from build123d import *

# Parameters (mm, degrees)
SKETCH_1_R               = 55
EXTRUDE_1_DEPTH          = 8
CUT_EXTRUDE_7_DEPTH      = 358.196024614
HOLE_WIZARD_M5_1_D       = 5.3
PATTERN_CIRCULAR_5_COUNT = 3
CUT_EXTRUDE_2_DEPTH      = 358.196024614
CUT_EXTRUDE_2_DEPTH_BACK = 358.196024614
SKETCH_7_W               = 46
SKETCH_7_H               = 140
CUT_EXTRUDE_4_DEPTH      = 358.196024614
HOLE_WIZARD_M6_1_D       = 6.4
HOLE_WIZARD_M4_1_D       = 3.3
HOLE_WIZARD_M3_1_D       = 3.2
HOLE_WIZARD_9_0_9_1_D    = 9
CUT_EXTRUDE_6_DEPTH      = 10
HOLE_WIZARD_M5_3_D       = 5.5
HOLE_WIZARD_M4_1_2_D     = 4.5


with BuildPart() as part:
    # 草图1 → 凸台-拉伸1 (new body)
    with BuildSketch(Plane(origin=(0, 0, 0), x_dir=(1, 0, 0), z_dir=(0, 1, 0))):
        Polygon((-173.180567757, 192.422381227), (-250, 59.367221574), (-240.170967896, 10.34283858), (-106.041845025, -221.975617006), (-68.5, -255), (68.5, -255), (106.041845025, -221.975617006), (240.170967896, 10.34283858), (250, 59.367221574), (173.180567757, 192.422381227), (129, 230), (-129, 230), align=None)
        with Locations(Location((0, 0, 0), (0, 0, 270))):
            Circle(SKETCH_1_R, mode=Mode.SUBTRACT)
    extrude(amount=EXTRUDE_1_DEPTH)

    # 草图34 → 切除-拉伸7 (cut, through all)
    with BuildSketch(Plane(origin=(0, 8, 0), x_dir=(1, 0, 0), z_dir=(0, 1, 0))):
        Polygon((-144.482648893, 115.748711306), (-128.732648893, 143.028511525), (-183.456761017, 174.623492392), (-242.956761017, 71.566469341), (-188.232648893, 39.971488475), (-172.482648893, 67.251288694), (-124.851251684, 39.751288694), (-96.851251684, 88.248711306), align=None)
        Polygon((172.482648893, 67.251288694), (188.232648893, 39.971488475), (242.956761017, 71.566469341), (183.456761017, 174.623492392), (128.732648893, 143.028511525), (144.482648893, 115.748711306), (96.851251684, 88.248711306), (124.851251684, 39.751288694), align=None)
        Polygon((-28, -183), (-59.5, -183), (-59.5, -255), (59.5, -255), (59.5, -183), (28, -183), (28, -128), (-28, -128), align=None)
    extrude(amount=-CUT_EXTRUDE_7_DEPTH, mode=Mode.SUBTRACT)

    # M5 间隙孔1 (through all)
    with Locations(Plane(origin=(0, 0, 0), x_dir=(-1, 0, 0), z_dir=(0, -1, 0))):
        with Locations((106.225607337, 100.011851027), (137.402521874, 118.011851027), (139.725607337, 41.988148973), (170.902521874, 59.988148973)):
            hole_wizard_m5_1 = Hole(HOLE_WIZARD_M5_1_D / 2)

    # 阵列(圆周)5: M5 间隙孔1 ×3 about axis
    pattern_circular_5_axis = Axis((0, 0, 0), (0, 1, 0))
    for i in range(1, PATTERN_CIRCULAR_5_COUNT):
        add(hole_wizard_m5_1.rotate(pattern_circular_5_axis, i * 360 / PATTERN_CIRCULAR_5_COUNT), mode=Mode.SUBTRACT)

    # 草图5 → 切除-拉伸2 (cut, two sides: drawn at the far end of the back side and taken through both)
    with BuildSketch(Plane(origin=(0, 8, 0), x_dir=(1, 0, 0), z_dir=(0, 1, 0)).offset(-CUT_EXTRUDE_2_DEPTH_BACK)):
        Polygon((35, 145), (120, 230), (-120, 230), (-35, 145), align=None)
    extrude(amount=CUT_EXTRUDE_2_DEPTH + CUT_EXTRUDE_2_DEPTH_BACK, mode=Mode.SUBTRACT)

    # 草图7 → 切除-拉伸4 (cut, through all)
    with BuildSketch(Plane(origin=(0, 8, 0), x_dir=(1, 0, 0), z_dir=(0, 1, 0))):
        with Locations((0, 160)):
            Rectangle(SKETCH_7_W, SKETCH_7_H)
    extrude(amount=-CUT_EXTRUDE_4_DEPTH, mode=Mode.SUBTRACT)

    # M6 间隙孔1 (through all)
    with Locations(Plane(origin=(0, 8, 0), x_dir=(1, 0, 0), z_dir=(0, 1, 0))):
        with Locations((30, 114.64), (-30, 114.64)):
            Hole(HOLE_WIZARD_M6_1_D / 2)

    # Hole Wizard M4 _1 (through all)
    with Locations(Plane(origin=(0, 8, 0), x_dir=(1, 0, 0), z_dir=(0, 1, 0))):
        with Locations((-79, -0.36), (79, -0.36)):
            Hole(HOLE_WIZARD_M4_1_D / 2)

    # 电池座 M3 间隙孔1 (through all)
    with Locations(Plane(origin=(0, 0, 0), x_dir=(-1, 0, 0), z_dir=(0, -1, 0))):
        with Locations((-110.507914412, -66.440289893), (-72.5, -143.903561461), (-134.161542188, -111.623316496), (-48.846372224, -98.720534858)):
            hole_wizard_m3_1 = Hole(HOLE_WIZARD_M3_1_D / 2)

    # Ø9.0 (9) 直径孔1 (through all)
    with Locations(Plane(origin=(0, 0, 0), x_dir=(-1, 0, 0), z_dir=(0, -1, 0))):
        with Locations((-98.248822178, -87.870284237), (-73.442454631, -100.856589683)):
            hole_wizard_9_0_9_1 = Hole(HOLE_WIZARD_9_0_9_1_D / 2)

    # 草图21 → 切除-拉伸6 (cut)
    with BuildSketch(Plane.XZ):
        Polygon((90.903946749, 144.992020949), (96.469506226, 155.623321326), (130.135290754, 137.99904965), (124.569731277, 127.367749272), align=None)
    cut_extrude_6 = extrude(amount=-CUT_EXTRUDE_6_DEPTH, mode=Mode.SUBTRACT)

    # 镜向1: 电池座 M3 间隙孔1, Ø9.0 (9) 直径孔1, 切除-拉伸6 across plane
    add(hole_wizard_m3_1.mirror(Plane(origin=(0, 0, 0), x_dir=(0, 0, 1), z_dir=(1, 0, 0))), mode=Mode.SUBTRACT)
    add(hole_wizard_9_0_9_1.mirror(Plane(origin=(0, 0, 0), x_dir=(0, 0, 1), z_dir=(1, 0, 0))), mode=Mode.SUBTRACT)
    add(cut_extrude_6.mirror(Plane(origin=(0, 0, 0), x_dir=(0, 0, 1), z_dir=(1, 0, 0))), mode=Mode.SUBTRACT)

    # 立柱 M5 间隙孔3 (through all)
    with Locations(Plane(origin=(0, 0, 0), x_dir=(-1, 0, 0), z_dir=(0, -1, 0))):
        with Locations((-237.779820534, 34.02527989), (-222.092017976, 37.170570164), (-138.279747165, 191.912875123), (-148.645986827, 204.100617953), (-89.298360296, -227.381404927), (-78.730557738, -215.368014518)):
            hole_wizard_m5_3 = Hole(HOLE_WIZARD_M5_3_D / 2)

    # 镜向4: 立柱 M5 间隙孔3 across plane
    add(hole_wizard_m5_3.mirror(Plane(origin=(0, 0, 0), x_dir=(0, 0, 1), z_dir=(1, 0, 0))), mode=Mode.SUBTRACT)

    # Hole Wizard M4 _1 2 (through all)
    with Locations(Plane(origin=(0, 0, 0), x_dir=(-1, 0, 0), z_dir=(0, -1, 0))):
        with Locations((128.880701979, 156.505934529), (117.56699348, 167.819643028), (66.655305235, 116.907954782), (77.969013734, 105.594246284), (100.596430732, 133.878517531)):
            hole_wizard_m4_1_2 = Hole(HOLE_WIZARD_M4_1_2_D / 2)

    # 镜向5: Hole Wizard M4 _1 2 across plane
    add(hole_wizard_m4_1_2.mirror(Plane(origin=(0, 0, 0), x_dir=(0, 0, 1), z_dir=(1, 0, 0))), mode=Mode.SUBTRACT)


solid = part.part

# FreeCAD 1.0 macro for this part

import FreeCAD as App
import Part
import Sketcher
Q = App.Units.Quantity

doc = App.newDocument("Part")
body = doc.addObject("PartDesign::Body", "Body")

sketch1 = doc.addObject("Sketcher::SketchObject", "Sketch")
body.addObject(sketch1)
sketch1.AttachmentSupport = (doc.XZ_Plane, [""])
sketch1.MapMode = "FlatFace"
sketch1.addGeometry([
    Part.LineSegment(App.Vector(-173.180568, -192.422381, 0), App.Vector(-250, -59.367222, 0)),
    Part.LineSegment(App.Vector(-250, -59.367222, 0), App.Vector(-240.170968, -10.342839, 0)),
    Part.LineSegment(App.Vector(-240.170968, -10.342839, 0), App.Vector(-106.041845, 221.975617, 0)),
    Part.LineSegment(App.Vector(-106.041845, 221.975617, 0), App.Vector(-68.5, 255, 0)),
    Part.LineSegment(App.Vector(-68.5, 255, 0), App.Vector(68.5, 255, 0)),
    Part.LineSegment(App.Vector(68.5, 255, 0), App.Vector(106.041845, 221.975617, 0)),
    Part.LineSegment(App.Vector(106.041845, 221.975617, 0), App.Vector(240.170968, -10.342839, 0)),
    Part.LineSegment(App.Vector(240.170968, -10.342839, 0), App.Vector(250, -59.367222, 0)),
    Part.LineSegment(App.Vector(250, -59.367222, 0), App.Vector(173.180568, -192.422381, 0)),
    Part.LineSegment(App.Vector(173.180568, -192.422381, 0), App.Vector(129, -230, 0)),
    Part.LineSegment(App.Vector(129, -230, 0), App.Vector(-129, -230, 0)),
    Part.LineSegment(App.Vector(-129, -230, 0), App.Vector(-173.180568, -192.422381, 0)),
    Part.Circle(App.Vector(0, 0, 0), App.Vector(0, 0, 1), 55),
], False)
sketch1.addConstraint([
    Sketcher.Constraint("Coincident", 0, 2, 1, 1),
    Sketcher.Constraint("Coincident", 1, 2, 2, 1),
    Sketcher.Constraint("Coincident", 2, 2, 3, 1),
    Sketcher.Constraint("Coincident", 3, 2, 4, 1),
    Sketcher.Constraint("Coincident", 4, 2, 5, 1),
    Sketcher.Constraint("Coincident", 5, 2, 6, 1),
    Sketcher.Constraint("Coincident", 6, 2, 7, 1),
    Sketcher.Constraint("Coincident", 7, 2, 8, 1),
    Sketcher.Constraint("Coincident", 8, 2, 9, 1),
    Sketcher.Constraint("Coincident", 9, 2, 10, 1),
    Sketcher.Constraint("Coincident", 10, 2, 11, 1),
    Sketcher.Constraint("Coincident", 11, 2, 0, 1),
    Sketcher.Constraint("Horizontal", 4),
    Sketcher.Constraint("Horizontal", 10),
    Sketcher.Constraint("Coincident", 12, 3, -1, 1),
    Sketcher.Constraint("Symmetric", 2, 2, 5, 2, -2),
    Sketcher.Constraint("Symmetric", 1, 2, 6, 2, -2),
    Sketcher.Constraint("Symmetric", 0, 2, 7, 2, -2),
    Sketcher.Constraint("Symmetric", 8, 2, 11, 2, -2),
    Sketcher.Constraint("Parallel", 0, 6),
    Sketcher.Constraint("Equal", 1, 3),
    Sketcher.Constraint("Equal", 3, 5),
    Sketcher.Constraint("Equal", 9, 11),
    Sketcher.Constraint("Diameter", 12, Q("110 mm")),
    Sketcher.Constraint("DistanceX", 4, 1, 4, 2, Q("137 mm")),
    Sketcher.Constraint("DistanceX", 10, 2, 10, 1, Q("258 mm")),
    Sketcher.Constraint("Angle", 0, Q("120 deg")),
    Sketcher.Constraint("Distance", 1, Q("50 mm")),
    Sketcher.Constraint("Distance", 9, Q("58 mm")),
    Sketcher.Constraint("DistanceX", 0, 2, -1, 1, Q("250 mm")),
    Sketcher.Constraint("DistanceY", -1, 1, 3, 2, Q("255 mm")),
    Sketcher.Constraint("DistanceY", 9, 2, -1, 1, Q("230 mm")),
    Sketcher.Constraint("DistanceY", 8, 2, 5, 2, Q("414.397998 mm")),
    Sketcher.Constraint("DistanceX", 8, 2, 6, 2, Q("66.9904 mm")),
])
pad1 = doc.addObject("PartDesign::Pad", "Pad")
body.addObject(pad1)
pad1.Profile = sketch1
pad1.Length = 8
pad1.Reversed = True

sketch2 = doc.addObject("Sketcher::SketchObject", "Sketch001")
body.addObject(sketch2)
sketch2.AttachmentSupport = (doc.XZ_Plane, [""])
sketch2.MapMode = "FlatFace"
sketch2.AttachmentOffset = App.Placement(App.Vector(0, 0, -8), App.Rotation())
sketch2.addGeometry([
    Part.LineSegment(App.Vector(-144.482649, -115.748711, 0), App.Vector(-128.732649, -143.028512, 0)),
    Part.LineSegment(App.Vector(-128.732649, -143.028512, 0), App.Vector(-183.456761, -174.623492, 0)),
    Part.LineSegment(App.Vector(-183.456761, -174.623492, 0), App.Vector(-242.956761, -71.566469, 0)),
    Part.LineSegment(App.Vector(-242.956761, -71.566469, 0), App.Vector(-188.232649, -39.971488, 0)),
    Part.LineSegment(App.Vector(-188.232649, -39.971488, 0), App.Vector(-172.482649, -67.251289, 0)),
    Part.LineSegment(App.Vector(-172.482649, -67.251289, 0), App.Vector(-124.851252, -39.751289, 0)),
    Part.LineSegment(App.Vector(-124.851252, -39.751289, 0), App.Vector(-96.851252, -88.248711, 0)),
    Part.LineSegment(App.Vector(-96.851252, -88.248711, 0), App.Vector(-144.482649, -115.748711, 0)),
    Part.LineSegment(App.Vector(172.482649, -67.251289, 0), App.Vector(188.232649, -39.971488, 0)),
    Part.LineSegment(App.Vector(188.232649, -39.971488, 0), App.Vector(242.956761, -71.566469, 0)),
    Part.LineSegment(App.Vector(242.956761, -71.566469, 0), App.Vector(183.456761, -174.623492, 0)),
    Part.LineSegment(App.Vector(183.456761, -174.623492, 0), App.Vector(128.732649, -143.028512, 0)),
    Part.LineSegment(App.Vector(128.732649, -143.028512, 0), App.Vector(144.482649, -115.748711, 0)),
    Part.LineSegment(App.Vector(144.482649, -115.748711, 0), App.Vector(96.851252, -88.248711, 0)),
    Part.LineSegment(App.Vector(96.851252, -88.248711, 0), App.Vector(124.851252, -39.751289, 0)),
    Part.LineSegment(App.Vector(124.851252, -39.751289, 0), App.Vector(172.482649, -67.251289, 0)),
    Part.LineSegment(App.Vector(-28, 183, 0), App.Vector(-59.5, 183, 0)),
    Part.LineSegment(App.Vector(-59.5, 183, 0), App.Vector(-59.5, 255, 0)),
    Part.LineSegment(App.Vector(-59.5, 255, 0), App.Vector(59.5, 255, 0)),
    Part.LineSegment(App.Vector(59.5, 255, 0), App.Vector(59.5, 183, 0)),
    Part.LineSegment(App.Vector(59.5, 183, 0), App.Vector(28, 183, 0)),
    Part.LineSegment(App.Vector(28, 183, 0), App.Vector(28, 128, 0)),
    Part.LineSegment(App.Vector(28, 128, 0), App.Vector(-28, 128, 0)),
    Part.LineSegment(App.Vector(-28, 128, 0), App.Vector(-28, 183, 0)),
], False)
sketch2.addConstraint([
    Sketcher.Constraint("Coincident", 0, 2, 1, 1),
    Sketcher.Constraint("Coincident", 1, 2, 2, 1),
    Sketcher.Constraint("Coincident", 2, 2, 3, 1),
    Sketcher.Constraint("Coincident", 3, 2, 4, 1),
    Sketcher.Constraint("Coincident", 4, 2, 5, 1),
    Sketcher.Constraint("Coincident", 5, 2, 6, 1),
    Sketcher.Constraint("Coincident", 6, 2, 7, 1),
    Sketcher.Constraint("Coincident", 7, 2, 0, 1),
    Sketcher.Constraint("Coincident", 8, 2, 9, 1),
    Sketcher.Constraint("Coincident", 9, 2, 10, 1),
    Sketcher.Constraint("Coincident", 10, 2, 11, 1),
    Sketcher.Constraint("Coincident", 11, 2, 12, 1),
    Sketcher.Constraint("Coincident", 12, 2, 13, 1),
    Sketcher.Constraint("Coincident", 13, 2, 14, 1),
    Sketcher.Constraint("Coincident", 14, 2, 15, 1),
    Sketcher.Constraint("Coincident", 15, 2, 8, 1),
    Sketcher.Constraint("Coincident", 16, 2, 17, 1),
    Sketcher.Constraint("Coincident", 17, 2, 18, 1),
    Sketcher.Constraint("Coincident", 18, 2, 19, 1),
    Sketcher.Constraint("Coincident", 19, 2, 20, 1),
    Sketcher.Constraint("Coincident", 20, 2, 21, 1),
    Sketcher.Constraint("Coincident", 21, 2, 22, 1),
    Sketcher.Constraint("Coincident", 22, 2, 23, 1),
    Sketcher.Constraint("Coincident", 23, 2, 16, 1),
    Sketcher.Constraint("Horizontal", 16),
    Sketcher.Constraint("Vertical", 17),
    Sketcher.Constraint("Horizontal", 18),
    Sketcher.Constraint("Vertical", 19),
    Sketcher.Constraint("Horizontal", 20),
    Sketcher.Constraint("Vertical", 21),
    Sketcher.Constraint("Horizontal", 22),
    Sketcher.Constraint("Vertical", 23),
    Sketcher.Constraint("Symmetric", 3, 2, 8, 2, -2),
    Sketcher.Constraint("Symmetric", 2, 2, 9, 2, -2),
    Sketcher.Constraint("Symmetric", 1, 2, 10, 2, -2),
    Sketcher.Constraint("Symmetric", 0, 2, 11, 2, -2),
    Sketcher.Constraint("Symmetric", 7, 2, 12, 2, -2),
    Sketcher.Constraint("Symmetric", 6, 2, 13, 2, -2),
    Sketcher.Constraint("Symmetric", 5, 2, 14, 2, -2),
    Sketcher.Constraint("Symmetric", 4, 2, 15, 2, -2),
    Sketcher.Constraint("Symmetric", 16, 2, 19, 2, -2),
    Sketcher.Constraint("Perpendicular", 0, 1),
    Sketcher.Constraint("Perpendicular", 1, 2),
    Sketcher.Constraint("Perpendicular", 2, 3),
    Sketcher.Constraint("Perpendicular", 3, 4),
    Sketcher.Constraint("Perpendicular", 4, 5),
    Sketcher.Constraint("Perpendicular", 5, 6),
    Sketcher.Constraint("Perpendicular", 6, 7),
    Sketcher.Constraint("Equal", 16, 20),
    Sketcher.Constraint("Equal", 1, 3),
    Sketcher.Constraint("Equal", 0, 4),
    Sketcher.Constraint("DistanceX", 18, 1, 18, 2, Q("119 mm")),
    Sketcher.Constraint("DistanceX", 22, 2, 22, 1, Q("56 mm")),
    Sketcher.Constraint("DistanceY", 17, 1, 17, 2, Q("72 mm")),
    Sketcher.Constraint("DistanceY", 21, 2, 21, 1, Q("55 mm")),
    Sketcher.Constraint("Angle", 0, Q("-60 deg")),
    Sketcher.Constraint("Distance", 2, Q("119 mm")),
    Sketcher.Constraint("Distance", 5, Q("55 mm")),
    Sketcher.Constraint("Distance", 6, Q("56 mm")),
    Sketcher.Constraint("DistanceY", -1, 1, 16, 2, Q("183 mm")),
    Sketcher.Constraint("DistanceX", 6, 2, 8, 2, Q("285.083901 mm")),
    Sketcher.Constraint("Distance", 1, Q("63.189962 mm")),
    Sketcher.Constraint("DistanceY", 0, 2, -1, 1, Q("143.028512 mm")),
])
pocket1 = doc.addObject("PartDesign::Pocket", "Pocket")
body.addObject(pocket1)
pocket1.Profile = sketch2
pocket1.Type = "ThroughAll"
pocket1.Reversed = True

sketch3 = doc.addObject("Sketcher::SketchObject", "Sketch002")
body.addObject(sketch3)
sketch3.AttachmentSupport = (doc.XZ_Plane, [""])
sketch3.MapMode = "FlatFace"
sketch3.addGeometry([
    Part.Circle(App.Vector(-106.225607, -100.011851, 0), App.Vector(0, 0, 1), 2.65),
    Part.Circle(App.Vector(-137.402522, -118.011851, 0), App.Vector(0, 0, 1), 2.65),
    Part.Circle(App.Vector(-139.725607, -41.988149, 0), App.Vector(0, 0, 1), 2.65),
    Part.Circle(App.Vector(-170.902522, -59.988149, 0), App.Vector(0, 0, 1), 2.65),
], False)
sketch3.addConstraint([
    Sketcher.Constraint("Equal", 0, 1),
    Sketcher.Constraint("Equal", 1, 2),
    Sketcher.Constraint("Equal", 2, 3),
    Sketcher.Constraint("Diameter", 0, Q("5.3 mm")),
    Sketcher.Constraint("DistanceY", 1, 3, 0, 3, Q("18 mm")),
    Sketcher.Constraint("DistanceY", 3, 3, 2, 3, Q("18 mm")),
    Sketcher.Constraint("DistanceX", 2, 3, 0, 3, Q("33.5 mm")),
    Sketcher.Constraint("DistanceX", 3, 3, 1, 3, Q("33.5 mm")),
    Sketcher.Constraint("DistanceY", 0, 3, -1, 1, Q("100.011851 mm")),
    Sketcher.Constraint("DistanceX", 1, 3, -1, 1, Q("137.402522 mm")),
    Sketcher.Constraint("DistanceY", 2, 3, -1, 1, Q("41.988149 mm")),
    Sketcher.Constraint("DistanceX", 0, 3, -1, 1, Q("106.225607 mm")),
])
doc.recompute()
hole = doc.addObject("PartDesign::Hole", "Hole")
body.addObject(hole)
hole.Profile = sketch3
hole.ThreadType = "None"
hole.Diameter = 5.3
hole.DepthType = "ThroughAll"
doc.recompute()

polarpattern = doc.addObject("PartDesign::PolarPattern", "PolarPattern")
body.addObject(polarpattern)
polarpattern.Originals = [hole]
polarpattern.Axis = (doc.Y_Axis, [""])
polarpattern.Angle = 360
polarpattern.Occurrences = 3
body.Tip = polarpattern

sketch4 = doc.addObject("Sketcher::SketchObject", "Sketch003")
body.addObject(sketch4)
sketch4.AttachmentSupport = (doc.XZ_Plane, [""])
sketch4.MapMode = "FlatFace"
sketch4.AttachmentOffset = App.Placement(App.Vector(0, 0, -8), App.Rotation())
sketch4.addGeometry([
    Part.LineSegment(App.Vector(35, -145, 0), App.Vector(120, -230, 0)),
    Part.LineSegment(App.Vector(120, -230, 0), App.Vector(-120, -230, 0)),
    Part.LineSegment(App.Vector(-120, -230, 0), App.Vector(-35, -145, 0)),
    Part.LineSegment(App.Vector(-35, -145, 0), App.Vector(35, -145, 0)),
], False)
sketch4.addConstraint([
    Sketcher.Constraint("Coincident", 0, 2, 1, 1),
    Sketcher.Constraint("Coincident", 1, 2, 2, 1),
    Sketcher.Constraint("Coincident", 2, 2, 3, 1),
    Sketcher.Constraint("Coincident", 3, 2, 0, 1),
    Sketcher.Constraint("Horizontal", 1),
    Sketcher.Constraint("Horizontal", 3),
    Sketcher.Constraint("Perpendicular", 0, 2),
    Sketcher.Constraint("Equal", 0, 2),
    Sketcher.Constraint("DistanceX", 1, 2, 1, 1, Q("240 mm")),
    Sketcher.Constraint("DistanceX", 3, 1, 3, 2, Q("70 mm")),
    Sketcher.Constraint("DistanceX", -1, 1, 0, 2, Q("120 mm")),
    Sketcher.Constraint("DistanceY", 0, 2, -1, 1, Q("230 mm")),
])
pocket2 = doc.addObject("PartDesign::Pocket", "Pocket001")
body.addObject(pocket2)
pocket2.Profile = sketch4
pocket2.Type = "ThroughAll"
pocket2.Midplane = True

sketch5 = doc.addObject("Sketcher::SketchObject", "Sketch004")
body.addObject(sketch5)
sketch5.AttachmentSupport = (doc.XZ_Plane, [""])
sketch5.MapMode = "FlatFace"
sketch5.AttachmentOffset = App.Placement(App.Vector(0, 0, -8), App.Rotation())
sketch5.addGeometry([
    Part.LineSegment(App.Vector(-23, -230, 0), App.Vector(-23, -90, 0)),
    Part.LineSegment(App.Vector(-23, -90, 0), App.Vector(23, -90, 0)),
    Part.LineSegment(App.Vector(23, -90, 0), App.Vector(23, -230, 0)),
    Part.LineSegment(App.Vector(23, -230, 0), App.Vector(-23, -230, 0)),
], False)
sketch5.addConstraint([
    Sketcher.Constraint("Coincident", 0, 2, 1, 1),
    Sketcher.Constraint("Coincident", 1, 2, 2, 1),
    Sketcher.Constraint("Coincident", 2, 2, 3, 1),
    Sketcher.Constraint("Coincident", 3, 2, 0, 1),
    Sketcher.Constraint("Vertical", 0),
    Sketcher.Constraint("Horizontal", 1),
    Sketcher.Constraint("Vertical", 2),
    Sketcher.Constraint("Horizontal", 3),
    Sketcher.Constraint("DistanceX", 1, 1, 1, 2, Q("46 mm")),
    Sketcher.Constraint("DistanceY", 0, 1, 0, 2, Q("140 mm")),
    Sketcher.Constraint("DistanceX", 0, 2, -1, 1, Q("23 mm")),
    Sketcher.Constraint("DistanceY", 0, 2, -1, 1, Q("90 mm")),
])
pocket3 = doc.addObject("PartDesign::Pocket", "Pocket002")
body.addObject(pocket3)
pocket3.Profile = sketch5
pocket3.Type = "ThroughAll"
pocket3.Reversed = True

sketch6 = doc.addObject("Sketcher::SketchObject", "Sketch005")
body.addObject(sketch6)
sketch6.AttachmentSupport = (doc.XZ_Plane, [""])
sketch6.MapMode = "FlatFace"
sketch6.AttachmentOffset = App.Placement(App.Vector(0, 0, -8), App.Rotation())
sketch6.addGeometry([
    Part.Circle(App.Vector(30, -114.64, 0), App.Vector(0, 0, 1), 3.2),
    Part.Circle(App.Vector(-30, -114.64, 0), App.Vector(0, 0, 1), 3.2),
], False)
sketch6.addConstraint([
    Sketcher.Constraint("Equal", 0, 1),
    Sketcher.Constraint("Symmetric", 0, 3, 1, 3, -2),
    Sketcher.Constraint("Diameter", 0, Q("6.4 mm")),
    Sketcher.Constraint("DistanceX", -1, 1, 0, 3, Q("30 mm")),
    Sketcher.Constraint("DistanceY", 0, 3, -1, 1, Q("114.64 mm")),
])
doc.recompute()
hole2 = doc.addObject("PartDesign::Hole", "Hole001")
body.addObject(hole2)
hole2.Profile = sketch6
hole2.ThreadType = "None"
hole2.Diameter = 6.4
hole2.DepthType = "ThroughAll"
hole2.Reversed = True

sketch7 = doc.addObject("Sketcher::SketchObject", "Sketch006")
body.addObject(sketch7)
sketch7.AttachmentSupport = (doc.XZ_Plane, [""])
sketch7.MapMode = "FlatFace"
sketch7.AttachmentOffset = App.Placement(App.Vector(0, 0, -8), App.Rotation())
sketch7.addGeometry([
    Part.Circle(App.Vector(-79, 0.36, 0), App.Vector(0, 0, 1), 1.65),
    Part.Circle(App.Vector(79, 0.36, 0), App.Vector(0, 0, 1), 1.65),
], False)
sketch7.addConstraint([
    Sketcher.Constraint("Equal", 0, 1),
    Sketcher.Constraint("Symmetric", 0, 3, 1, 3, -2),
    Sketcher.Constraint("Diameter", 0, Q("3.3 mm")),
    Sketcher.Constraint("DistanceX", 0, 3, -1, 1, Q("79 mm")),
    Sketcher.Constraint("DistanceY", -1, 1, 0, 3, Q("0.36 mm")),
])
doc.recompute()
hole3 = doc.addObject("PartDesign::Hole", "Hole002")
body.addObject(hole3)
hole3.Profile = sketch7
hole3.ThreadType = "None"
hole3.Diameter = 3.3
hole3.DepthType = "ThroughAll"
hole3.Reversed = True

sketch8 = doc.addObject("Sketcher::SketchObject", "Sketch007")
body.addObject(sketch8)
sketch8.AttachmentSupport = (doc.XZ_Plane, [""])
sketch8.MapMode = "FlatFace"
sketch8.addGeometry([
    Part.Circle(App.Vector(110.507914, 66.44029, 0), App.Vector(0, 0, 1), 1.6),
    Part.Circle(App.Vector(72.5, 143.903561, 0), App.Vector(0, 0, 1), 1.6),
    Part.Circle(App.Vector(134.161542, 111.623316, 0), App.Vector(0, 0, 1), 1.6),
    Part.Circle(App.Vector(48.846372, 98.720535, 0), App.Vector(0, 0, 1), 1.6),
], False)
sketch8.addConstraint([
    Sketcher.Constraint("Equal", 0, 1),
    Sketcher.Constraint("Equal", 1, 2),
    Sketcher.Constraint("Equal", 2, 3),
    Sketcher.Constraint("Diameter", 0, Q("3.2 mm")),
    Sketcher.Constraint("DistanceX", -1, 1, 1, 3, Q("72.5 mm")),
    Sketcher.Constraint("DistanceY", -1, 1, 0, 3, Q("66.44029 mm")),
    Sketcher.Constraint("DistanceY", -1, 1, 1, 3, Q("143.903561 mm")),
    Sketcher.Constraint("DistanceX", 3, 3, 2, 3, Q("85.31517 mm")),
    Sketcher.Constraint("DistanceY", 3, 3, 2, 3, Q("12.902782 mm")),
    Sketcher.Constraint("DistanceX", -1, 1, 0, 3, Q("110.507914 mm")),
    Sketcher.Constraint("DistanceX", -1, 1, 2, 3, Q("134.161542 mm")),
    Sketcher.Constraint("DistanceY", -1, 1, 2, 3, Q("111.623316 mm")),
])
doc.recompute()
hole4 = doc.addObject("PartDesign::Hole", "Hole003")
body.addObject(hole4)
hole4.Profile = sketch8
hole4.ThreadType = "None"
hole4.Diameter = 3.2
hole4.DepthType = "ThroughAll"

sketch9 = doc.addObject("Sketcher::SketchObject", "Sketch008")
body.addObject(sketch9)
sketch9.AttachmentSupport = (doc.XZ_Plane, [""])
sketch9.MapMode = "FlatFace"
sketch9.addGeometry([
    Part.Circle(App.Vector(98.248822, 87.870284, 0), App.Vector(0, 0, 1), 4.5),
    Part.Circle(App.Vector(73.442455, 100.85659, 0), App.Vector(0, 0, 1), 4.5),
], False)
sketch9.addConstraint([
    Sketcher.Constraint("Equal", 0, 1),
    Sketcher.Constraint("Diameter", 0, Q("9 mm")),
    Sketcher.Constraint("DistanceY", -1, 1, 1, 3, Q("100.85659 mm")),
    Sketcher.Constraint("DistanceX", -1, 1, 0, 3, Q("98.248822 mm")),
    Sketcher.Constraint("DistanceY", -1, 1, 0, 3, Q("87.870284 mm")),
    Sketcher.Constraint("DistanceX", -1, 1, 1, 3, Q("73.442455 mm")),
])
doc.recompute()
hole5 = doc.addObject("PartDesign::Hole", "Hole004")
body.addObject(hole5)
hole5.Profile = sketch9
hole5.ThreadType = "None"
hole5.Diameter = 9
hole5.DepthType = "ThroughAll"

sketch10 = doc.addObject("Sketcher::SketchObject", "Sketch009")
body.addObject(sketch10)
sketch10.AttachmentSupport = (doc.XZ_Plane, [""])
sketch10.MapMode = "FlatFace"
sketch10.addGeometry([
    Part.LineSegment(App.Vector(96.469506, 155.623321, 0), App.Vector(90.903947, 144.992021, 0)),
    Part.LineSegment(App.Vector(90.903947, 144.992021, 0), App.Vector(124.569731, 127.367749, 0)),
    Part.LineSegment(App.Vector(124.569731, 127.367749, 0), App.Vector(130.135291, 137.99905, 0)),
    Part.LineSegment(App.Vector(130.135291, 137.99905, 0), App.Vector(96.469506, 155.623321, 0)),
], False)
sketch10.addConstraint([
    Sketcher.Constraint("Coincident", 0, 2, 1, 1),
    Sketcher.Constraint("Coincident", 1, 2, 2, 1),
    Sketcher.Constraint("Coincident", 2, 2, 3, 1),
    Sketcher.Constraint("Coincident", 3, 2, 0, 1),
    Sketcher.Constraint("Perpendicular", 0, 1),
    Sketcher.Constraint("Perpendicular", 1, 2),
    Sketcher.Constraint("Perpendicular", 2, 3),
    Sketcher.Constraint("Distance", 0, Q("12 mm")),
    Sketcher.Constraint("Distance", 1, Q("38 mm")),
    Sketcher.Constraint("DistanceY", 1, 2, 2, 2, Q("10.6313 mm")),
    Sketcher.Constraint("DistanceY", -1, 1, 0, 2, Q("144.992021 mm")),
    Sketcher.Constraint("DistanceX", -1, 1, 1, 2, Q("124.569731 mm")),
])
pocket4 = doc.addObject("PartDesign::Pocket", "Pocket003")
body.addObject(pocket4)
pocket4.Profile = sketch10
pocket4.Length = 10
doc.recompute()

mirrored = doc.addObject("PartDesign::Mirrored", "Mirrored")
body.addObject(mirrored)
mirrored.Originals = [hole4, hole5, pocket4]
mirrored.MirrorPlane = (doc.YZ_Plane, [""])
body.Tip = mirrored

sketch11 = doc.addObject("Sketcher::SketchObject", "Sketch010")
body.addObject(sketch11)
sketch11.AttachmentSupport = (doc.XZ_Plane, [""])
sketch11.MapMode = "FlatFace"
sketch11.addGeometry([
    Part.Circle(App.Vector(237.779821, -34.02528, 0), App.Vector(0, 0, 1), 2.75),
    Part.Circle(App.Vector(222.092018, -37.17057, 0), App.Vector(0, 0, 1), 2.75),
    Part.Circle(App.Vector(138.279747, -191.912875, 0), App.Vector(0, 0, 1), 2.75),
    Part.Circle(App.Vector(148.645987, -204.100618, 0), App.Vector(0, 0, 1), 2.75),
    Part.Circle(App.Vector(89.29836, 227.381405, 0), App.Vector(0, 0, 1), 2.75),
    Part.Circle(App.Vector(78.730558, 215.368015, 0), App.Vector(0, 0, 1), 2.75),
], False)
sketch11.addConstraint([
    Sketcher.Constraint("Equal", 0, 1),
    Sketcher.Constraint("Equal", 1, 2),
    Sketcher.Constraint("Equal", 2, 3),
    Sketcher.Constraint("Equal", 3, 4),
    Sketcher.Constraint("Equal", 4, 5),
    Sketcher.Constraint("Diameter", 0, Q("5.5 mm")),
    Sketcher.Constraint("DistanceX", -1, 1, 0, 3, Q("237.779821 mm")),
    Sketcher.Constraint("DistanceY", 0, 3, -1, 1, Q("34.02528 mm")),
    Sketcher.Constraint("DistanceY", 1, 3, -1, 1, Q("37.17057 mm")),
    Sketcher.Constraint("DistanceX", -1, 1, 4, 3, Q("89.29836 mm")),
    Sketcher.Constraint("DistanceX", 2, 3, 1, 3, Q("83.812271 mm")),
    Sketcher.Constraint("DistanceX", 2, 3, 3, 3, Q("10.36624 mm")),
    Sketcher.Constraint("DistanceY", 3, 3, 0, 3, Q("170.075338 mm")),
    Sketcher.Constraint("DistanceY", 2, 3, 4, 3, Q("419.29428 mm")),
    Sketcher.Constraint("DistanceY", 5, 3, 4, 3, Q("12.01339 mm")),
    Sketcher.Constraint("DistanceX", 5, 3, 1, 3, Q("143.36146 mm")),
    Sketcher.Constraint("DistanceX", -1, 1, 1, 3, Q("222.092018 mm")),
    Sketcher.Constraint("DistanceY", 2, 3, -1, 1, Q("191.912875 mm")),
])
doc.recompute()
hole6 = doc.addObject("PartDesign::Hole", "Hole005")
body.addObject(hole6)
hole6.Profile = sketch11
hole6.ThreadType = "None"
hole6.Diameter = 5.5
hole6.DepthType = "ThroughAll"
doc.recompute()

mirrored2 = doc.addObject("PartDesign::Mirrored", "Mirrored001")
body.addObject(mirrored2)
mirrored2.Originals = [hole6]
mirrored2.MirrorPlane = (doc.YZ_Plane, [""])
body.Tip = mirrored2

sketch12 = doc.addObject("Sketcher::SketchObject", "Sketch011")
body.addObject(sketch12)
sketch12.AttachmentSupport = (doc.XZ_Plane, [""])
sketch12.MapMode = "FlatFace"
sketch12.addGeometry([
    Part.Circle(App.Vector(-128.880702, -156.505935, 0), App.Vector(0, 0, 1), 2.25),
    Part.Circle(App.Vector(-117.566993, -167.819643, 0), App.Vector(0, 0, 1), 2.25),
    Part.Circle(App.Vector(-66.655305, -116.907955, 0), App.Vector(0, 0, 1), 2.25),
    Part.Circle(App.Vector(-77.969014, -105.594246, 0), App.Vector(0, 0, 1), 2.25),
    Part.Circle(App.Vector(-100.596431, -133.878518, 0), App.Vector(0, 0, 1), 2.25),
], False)
sketch12.addConstraint([
    Sketcher.Constraint("Equal", 0, 1),
    Sketcher.Constraint("Equal", 1, 2),
    Sketcher.Constraint("Equal", 2, 3),
    Sketcher.Constraint("Equal", 3, 4),
    Sketcher.Constraint("Diameter", 0, Q("4.5 mm")),
    Sketcher.Constraint("DistanceX", 0, 3, -1, 1, Q("128.880702 mm")),
    Sketcher.Constraint("DistanceX", 4, 3, -1, 1, Q("100.596431 mm")),
    Sketcher.Constraint("DistanceX", 0, 3, 1, 3, Q("11.313708 mm")),
    Sketcher.Constraint("DistanceY", 1, 3, 0, 3, Q("11.313708 mm")),
    Sketcher.Constraint("DistanceX", 1, 3, 2, 3, Q("50.911688 mm")),
    Sketcher.Constraint("DistanceY", 1, 3, 2, 3, Q("50.911688 mm")),
    Sketcher.Constraint("DistanceX", 3, 3, 2, 3, Q("11.313708 mm")),
    Sketcher.Constraint("DistanceY", 2, 3, 3, 3, Q("11.313708 mm")),
    Sketcher.Constraint("DistanceY", 4, 3, 3, 3, Q("28.284271 mm")),
    Sketcher.Constraint("DistanceY", 0, 3, -1, 1, Q("156.505935 mm")),
])
doc.recompute()
hole7 = doc.addObject("PartDesign::Hole", "Hole006")
body.addObject(hole7)
hole7.Profile = sketch12
hole7.ThreadType = "None"
hole7.Diameter = 4.5
hole7.DepthType = "ThroughAll"
doc.recompute()

mirrored3 = doc.addObject("PartDesign::Mirrored", "Mirrored002")
body.addObject(mirrored3)
mirrored3.Originals = [hole7]
mirrored3.MirrorPlane = (doc.YZ_Plane, [""])
body.Tip = mirrored3

doc.recompute()
